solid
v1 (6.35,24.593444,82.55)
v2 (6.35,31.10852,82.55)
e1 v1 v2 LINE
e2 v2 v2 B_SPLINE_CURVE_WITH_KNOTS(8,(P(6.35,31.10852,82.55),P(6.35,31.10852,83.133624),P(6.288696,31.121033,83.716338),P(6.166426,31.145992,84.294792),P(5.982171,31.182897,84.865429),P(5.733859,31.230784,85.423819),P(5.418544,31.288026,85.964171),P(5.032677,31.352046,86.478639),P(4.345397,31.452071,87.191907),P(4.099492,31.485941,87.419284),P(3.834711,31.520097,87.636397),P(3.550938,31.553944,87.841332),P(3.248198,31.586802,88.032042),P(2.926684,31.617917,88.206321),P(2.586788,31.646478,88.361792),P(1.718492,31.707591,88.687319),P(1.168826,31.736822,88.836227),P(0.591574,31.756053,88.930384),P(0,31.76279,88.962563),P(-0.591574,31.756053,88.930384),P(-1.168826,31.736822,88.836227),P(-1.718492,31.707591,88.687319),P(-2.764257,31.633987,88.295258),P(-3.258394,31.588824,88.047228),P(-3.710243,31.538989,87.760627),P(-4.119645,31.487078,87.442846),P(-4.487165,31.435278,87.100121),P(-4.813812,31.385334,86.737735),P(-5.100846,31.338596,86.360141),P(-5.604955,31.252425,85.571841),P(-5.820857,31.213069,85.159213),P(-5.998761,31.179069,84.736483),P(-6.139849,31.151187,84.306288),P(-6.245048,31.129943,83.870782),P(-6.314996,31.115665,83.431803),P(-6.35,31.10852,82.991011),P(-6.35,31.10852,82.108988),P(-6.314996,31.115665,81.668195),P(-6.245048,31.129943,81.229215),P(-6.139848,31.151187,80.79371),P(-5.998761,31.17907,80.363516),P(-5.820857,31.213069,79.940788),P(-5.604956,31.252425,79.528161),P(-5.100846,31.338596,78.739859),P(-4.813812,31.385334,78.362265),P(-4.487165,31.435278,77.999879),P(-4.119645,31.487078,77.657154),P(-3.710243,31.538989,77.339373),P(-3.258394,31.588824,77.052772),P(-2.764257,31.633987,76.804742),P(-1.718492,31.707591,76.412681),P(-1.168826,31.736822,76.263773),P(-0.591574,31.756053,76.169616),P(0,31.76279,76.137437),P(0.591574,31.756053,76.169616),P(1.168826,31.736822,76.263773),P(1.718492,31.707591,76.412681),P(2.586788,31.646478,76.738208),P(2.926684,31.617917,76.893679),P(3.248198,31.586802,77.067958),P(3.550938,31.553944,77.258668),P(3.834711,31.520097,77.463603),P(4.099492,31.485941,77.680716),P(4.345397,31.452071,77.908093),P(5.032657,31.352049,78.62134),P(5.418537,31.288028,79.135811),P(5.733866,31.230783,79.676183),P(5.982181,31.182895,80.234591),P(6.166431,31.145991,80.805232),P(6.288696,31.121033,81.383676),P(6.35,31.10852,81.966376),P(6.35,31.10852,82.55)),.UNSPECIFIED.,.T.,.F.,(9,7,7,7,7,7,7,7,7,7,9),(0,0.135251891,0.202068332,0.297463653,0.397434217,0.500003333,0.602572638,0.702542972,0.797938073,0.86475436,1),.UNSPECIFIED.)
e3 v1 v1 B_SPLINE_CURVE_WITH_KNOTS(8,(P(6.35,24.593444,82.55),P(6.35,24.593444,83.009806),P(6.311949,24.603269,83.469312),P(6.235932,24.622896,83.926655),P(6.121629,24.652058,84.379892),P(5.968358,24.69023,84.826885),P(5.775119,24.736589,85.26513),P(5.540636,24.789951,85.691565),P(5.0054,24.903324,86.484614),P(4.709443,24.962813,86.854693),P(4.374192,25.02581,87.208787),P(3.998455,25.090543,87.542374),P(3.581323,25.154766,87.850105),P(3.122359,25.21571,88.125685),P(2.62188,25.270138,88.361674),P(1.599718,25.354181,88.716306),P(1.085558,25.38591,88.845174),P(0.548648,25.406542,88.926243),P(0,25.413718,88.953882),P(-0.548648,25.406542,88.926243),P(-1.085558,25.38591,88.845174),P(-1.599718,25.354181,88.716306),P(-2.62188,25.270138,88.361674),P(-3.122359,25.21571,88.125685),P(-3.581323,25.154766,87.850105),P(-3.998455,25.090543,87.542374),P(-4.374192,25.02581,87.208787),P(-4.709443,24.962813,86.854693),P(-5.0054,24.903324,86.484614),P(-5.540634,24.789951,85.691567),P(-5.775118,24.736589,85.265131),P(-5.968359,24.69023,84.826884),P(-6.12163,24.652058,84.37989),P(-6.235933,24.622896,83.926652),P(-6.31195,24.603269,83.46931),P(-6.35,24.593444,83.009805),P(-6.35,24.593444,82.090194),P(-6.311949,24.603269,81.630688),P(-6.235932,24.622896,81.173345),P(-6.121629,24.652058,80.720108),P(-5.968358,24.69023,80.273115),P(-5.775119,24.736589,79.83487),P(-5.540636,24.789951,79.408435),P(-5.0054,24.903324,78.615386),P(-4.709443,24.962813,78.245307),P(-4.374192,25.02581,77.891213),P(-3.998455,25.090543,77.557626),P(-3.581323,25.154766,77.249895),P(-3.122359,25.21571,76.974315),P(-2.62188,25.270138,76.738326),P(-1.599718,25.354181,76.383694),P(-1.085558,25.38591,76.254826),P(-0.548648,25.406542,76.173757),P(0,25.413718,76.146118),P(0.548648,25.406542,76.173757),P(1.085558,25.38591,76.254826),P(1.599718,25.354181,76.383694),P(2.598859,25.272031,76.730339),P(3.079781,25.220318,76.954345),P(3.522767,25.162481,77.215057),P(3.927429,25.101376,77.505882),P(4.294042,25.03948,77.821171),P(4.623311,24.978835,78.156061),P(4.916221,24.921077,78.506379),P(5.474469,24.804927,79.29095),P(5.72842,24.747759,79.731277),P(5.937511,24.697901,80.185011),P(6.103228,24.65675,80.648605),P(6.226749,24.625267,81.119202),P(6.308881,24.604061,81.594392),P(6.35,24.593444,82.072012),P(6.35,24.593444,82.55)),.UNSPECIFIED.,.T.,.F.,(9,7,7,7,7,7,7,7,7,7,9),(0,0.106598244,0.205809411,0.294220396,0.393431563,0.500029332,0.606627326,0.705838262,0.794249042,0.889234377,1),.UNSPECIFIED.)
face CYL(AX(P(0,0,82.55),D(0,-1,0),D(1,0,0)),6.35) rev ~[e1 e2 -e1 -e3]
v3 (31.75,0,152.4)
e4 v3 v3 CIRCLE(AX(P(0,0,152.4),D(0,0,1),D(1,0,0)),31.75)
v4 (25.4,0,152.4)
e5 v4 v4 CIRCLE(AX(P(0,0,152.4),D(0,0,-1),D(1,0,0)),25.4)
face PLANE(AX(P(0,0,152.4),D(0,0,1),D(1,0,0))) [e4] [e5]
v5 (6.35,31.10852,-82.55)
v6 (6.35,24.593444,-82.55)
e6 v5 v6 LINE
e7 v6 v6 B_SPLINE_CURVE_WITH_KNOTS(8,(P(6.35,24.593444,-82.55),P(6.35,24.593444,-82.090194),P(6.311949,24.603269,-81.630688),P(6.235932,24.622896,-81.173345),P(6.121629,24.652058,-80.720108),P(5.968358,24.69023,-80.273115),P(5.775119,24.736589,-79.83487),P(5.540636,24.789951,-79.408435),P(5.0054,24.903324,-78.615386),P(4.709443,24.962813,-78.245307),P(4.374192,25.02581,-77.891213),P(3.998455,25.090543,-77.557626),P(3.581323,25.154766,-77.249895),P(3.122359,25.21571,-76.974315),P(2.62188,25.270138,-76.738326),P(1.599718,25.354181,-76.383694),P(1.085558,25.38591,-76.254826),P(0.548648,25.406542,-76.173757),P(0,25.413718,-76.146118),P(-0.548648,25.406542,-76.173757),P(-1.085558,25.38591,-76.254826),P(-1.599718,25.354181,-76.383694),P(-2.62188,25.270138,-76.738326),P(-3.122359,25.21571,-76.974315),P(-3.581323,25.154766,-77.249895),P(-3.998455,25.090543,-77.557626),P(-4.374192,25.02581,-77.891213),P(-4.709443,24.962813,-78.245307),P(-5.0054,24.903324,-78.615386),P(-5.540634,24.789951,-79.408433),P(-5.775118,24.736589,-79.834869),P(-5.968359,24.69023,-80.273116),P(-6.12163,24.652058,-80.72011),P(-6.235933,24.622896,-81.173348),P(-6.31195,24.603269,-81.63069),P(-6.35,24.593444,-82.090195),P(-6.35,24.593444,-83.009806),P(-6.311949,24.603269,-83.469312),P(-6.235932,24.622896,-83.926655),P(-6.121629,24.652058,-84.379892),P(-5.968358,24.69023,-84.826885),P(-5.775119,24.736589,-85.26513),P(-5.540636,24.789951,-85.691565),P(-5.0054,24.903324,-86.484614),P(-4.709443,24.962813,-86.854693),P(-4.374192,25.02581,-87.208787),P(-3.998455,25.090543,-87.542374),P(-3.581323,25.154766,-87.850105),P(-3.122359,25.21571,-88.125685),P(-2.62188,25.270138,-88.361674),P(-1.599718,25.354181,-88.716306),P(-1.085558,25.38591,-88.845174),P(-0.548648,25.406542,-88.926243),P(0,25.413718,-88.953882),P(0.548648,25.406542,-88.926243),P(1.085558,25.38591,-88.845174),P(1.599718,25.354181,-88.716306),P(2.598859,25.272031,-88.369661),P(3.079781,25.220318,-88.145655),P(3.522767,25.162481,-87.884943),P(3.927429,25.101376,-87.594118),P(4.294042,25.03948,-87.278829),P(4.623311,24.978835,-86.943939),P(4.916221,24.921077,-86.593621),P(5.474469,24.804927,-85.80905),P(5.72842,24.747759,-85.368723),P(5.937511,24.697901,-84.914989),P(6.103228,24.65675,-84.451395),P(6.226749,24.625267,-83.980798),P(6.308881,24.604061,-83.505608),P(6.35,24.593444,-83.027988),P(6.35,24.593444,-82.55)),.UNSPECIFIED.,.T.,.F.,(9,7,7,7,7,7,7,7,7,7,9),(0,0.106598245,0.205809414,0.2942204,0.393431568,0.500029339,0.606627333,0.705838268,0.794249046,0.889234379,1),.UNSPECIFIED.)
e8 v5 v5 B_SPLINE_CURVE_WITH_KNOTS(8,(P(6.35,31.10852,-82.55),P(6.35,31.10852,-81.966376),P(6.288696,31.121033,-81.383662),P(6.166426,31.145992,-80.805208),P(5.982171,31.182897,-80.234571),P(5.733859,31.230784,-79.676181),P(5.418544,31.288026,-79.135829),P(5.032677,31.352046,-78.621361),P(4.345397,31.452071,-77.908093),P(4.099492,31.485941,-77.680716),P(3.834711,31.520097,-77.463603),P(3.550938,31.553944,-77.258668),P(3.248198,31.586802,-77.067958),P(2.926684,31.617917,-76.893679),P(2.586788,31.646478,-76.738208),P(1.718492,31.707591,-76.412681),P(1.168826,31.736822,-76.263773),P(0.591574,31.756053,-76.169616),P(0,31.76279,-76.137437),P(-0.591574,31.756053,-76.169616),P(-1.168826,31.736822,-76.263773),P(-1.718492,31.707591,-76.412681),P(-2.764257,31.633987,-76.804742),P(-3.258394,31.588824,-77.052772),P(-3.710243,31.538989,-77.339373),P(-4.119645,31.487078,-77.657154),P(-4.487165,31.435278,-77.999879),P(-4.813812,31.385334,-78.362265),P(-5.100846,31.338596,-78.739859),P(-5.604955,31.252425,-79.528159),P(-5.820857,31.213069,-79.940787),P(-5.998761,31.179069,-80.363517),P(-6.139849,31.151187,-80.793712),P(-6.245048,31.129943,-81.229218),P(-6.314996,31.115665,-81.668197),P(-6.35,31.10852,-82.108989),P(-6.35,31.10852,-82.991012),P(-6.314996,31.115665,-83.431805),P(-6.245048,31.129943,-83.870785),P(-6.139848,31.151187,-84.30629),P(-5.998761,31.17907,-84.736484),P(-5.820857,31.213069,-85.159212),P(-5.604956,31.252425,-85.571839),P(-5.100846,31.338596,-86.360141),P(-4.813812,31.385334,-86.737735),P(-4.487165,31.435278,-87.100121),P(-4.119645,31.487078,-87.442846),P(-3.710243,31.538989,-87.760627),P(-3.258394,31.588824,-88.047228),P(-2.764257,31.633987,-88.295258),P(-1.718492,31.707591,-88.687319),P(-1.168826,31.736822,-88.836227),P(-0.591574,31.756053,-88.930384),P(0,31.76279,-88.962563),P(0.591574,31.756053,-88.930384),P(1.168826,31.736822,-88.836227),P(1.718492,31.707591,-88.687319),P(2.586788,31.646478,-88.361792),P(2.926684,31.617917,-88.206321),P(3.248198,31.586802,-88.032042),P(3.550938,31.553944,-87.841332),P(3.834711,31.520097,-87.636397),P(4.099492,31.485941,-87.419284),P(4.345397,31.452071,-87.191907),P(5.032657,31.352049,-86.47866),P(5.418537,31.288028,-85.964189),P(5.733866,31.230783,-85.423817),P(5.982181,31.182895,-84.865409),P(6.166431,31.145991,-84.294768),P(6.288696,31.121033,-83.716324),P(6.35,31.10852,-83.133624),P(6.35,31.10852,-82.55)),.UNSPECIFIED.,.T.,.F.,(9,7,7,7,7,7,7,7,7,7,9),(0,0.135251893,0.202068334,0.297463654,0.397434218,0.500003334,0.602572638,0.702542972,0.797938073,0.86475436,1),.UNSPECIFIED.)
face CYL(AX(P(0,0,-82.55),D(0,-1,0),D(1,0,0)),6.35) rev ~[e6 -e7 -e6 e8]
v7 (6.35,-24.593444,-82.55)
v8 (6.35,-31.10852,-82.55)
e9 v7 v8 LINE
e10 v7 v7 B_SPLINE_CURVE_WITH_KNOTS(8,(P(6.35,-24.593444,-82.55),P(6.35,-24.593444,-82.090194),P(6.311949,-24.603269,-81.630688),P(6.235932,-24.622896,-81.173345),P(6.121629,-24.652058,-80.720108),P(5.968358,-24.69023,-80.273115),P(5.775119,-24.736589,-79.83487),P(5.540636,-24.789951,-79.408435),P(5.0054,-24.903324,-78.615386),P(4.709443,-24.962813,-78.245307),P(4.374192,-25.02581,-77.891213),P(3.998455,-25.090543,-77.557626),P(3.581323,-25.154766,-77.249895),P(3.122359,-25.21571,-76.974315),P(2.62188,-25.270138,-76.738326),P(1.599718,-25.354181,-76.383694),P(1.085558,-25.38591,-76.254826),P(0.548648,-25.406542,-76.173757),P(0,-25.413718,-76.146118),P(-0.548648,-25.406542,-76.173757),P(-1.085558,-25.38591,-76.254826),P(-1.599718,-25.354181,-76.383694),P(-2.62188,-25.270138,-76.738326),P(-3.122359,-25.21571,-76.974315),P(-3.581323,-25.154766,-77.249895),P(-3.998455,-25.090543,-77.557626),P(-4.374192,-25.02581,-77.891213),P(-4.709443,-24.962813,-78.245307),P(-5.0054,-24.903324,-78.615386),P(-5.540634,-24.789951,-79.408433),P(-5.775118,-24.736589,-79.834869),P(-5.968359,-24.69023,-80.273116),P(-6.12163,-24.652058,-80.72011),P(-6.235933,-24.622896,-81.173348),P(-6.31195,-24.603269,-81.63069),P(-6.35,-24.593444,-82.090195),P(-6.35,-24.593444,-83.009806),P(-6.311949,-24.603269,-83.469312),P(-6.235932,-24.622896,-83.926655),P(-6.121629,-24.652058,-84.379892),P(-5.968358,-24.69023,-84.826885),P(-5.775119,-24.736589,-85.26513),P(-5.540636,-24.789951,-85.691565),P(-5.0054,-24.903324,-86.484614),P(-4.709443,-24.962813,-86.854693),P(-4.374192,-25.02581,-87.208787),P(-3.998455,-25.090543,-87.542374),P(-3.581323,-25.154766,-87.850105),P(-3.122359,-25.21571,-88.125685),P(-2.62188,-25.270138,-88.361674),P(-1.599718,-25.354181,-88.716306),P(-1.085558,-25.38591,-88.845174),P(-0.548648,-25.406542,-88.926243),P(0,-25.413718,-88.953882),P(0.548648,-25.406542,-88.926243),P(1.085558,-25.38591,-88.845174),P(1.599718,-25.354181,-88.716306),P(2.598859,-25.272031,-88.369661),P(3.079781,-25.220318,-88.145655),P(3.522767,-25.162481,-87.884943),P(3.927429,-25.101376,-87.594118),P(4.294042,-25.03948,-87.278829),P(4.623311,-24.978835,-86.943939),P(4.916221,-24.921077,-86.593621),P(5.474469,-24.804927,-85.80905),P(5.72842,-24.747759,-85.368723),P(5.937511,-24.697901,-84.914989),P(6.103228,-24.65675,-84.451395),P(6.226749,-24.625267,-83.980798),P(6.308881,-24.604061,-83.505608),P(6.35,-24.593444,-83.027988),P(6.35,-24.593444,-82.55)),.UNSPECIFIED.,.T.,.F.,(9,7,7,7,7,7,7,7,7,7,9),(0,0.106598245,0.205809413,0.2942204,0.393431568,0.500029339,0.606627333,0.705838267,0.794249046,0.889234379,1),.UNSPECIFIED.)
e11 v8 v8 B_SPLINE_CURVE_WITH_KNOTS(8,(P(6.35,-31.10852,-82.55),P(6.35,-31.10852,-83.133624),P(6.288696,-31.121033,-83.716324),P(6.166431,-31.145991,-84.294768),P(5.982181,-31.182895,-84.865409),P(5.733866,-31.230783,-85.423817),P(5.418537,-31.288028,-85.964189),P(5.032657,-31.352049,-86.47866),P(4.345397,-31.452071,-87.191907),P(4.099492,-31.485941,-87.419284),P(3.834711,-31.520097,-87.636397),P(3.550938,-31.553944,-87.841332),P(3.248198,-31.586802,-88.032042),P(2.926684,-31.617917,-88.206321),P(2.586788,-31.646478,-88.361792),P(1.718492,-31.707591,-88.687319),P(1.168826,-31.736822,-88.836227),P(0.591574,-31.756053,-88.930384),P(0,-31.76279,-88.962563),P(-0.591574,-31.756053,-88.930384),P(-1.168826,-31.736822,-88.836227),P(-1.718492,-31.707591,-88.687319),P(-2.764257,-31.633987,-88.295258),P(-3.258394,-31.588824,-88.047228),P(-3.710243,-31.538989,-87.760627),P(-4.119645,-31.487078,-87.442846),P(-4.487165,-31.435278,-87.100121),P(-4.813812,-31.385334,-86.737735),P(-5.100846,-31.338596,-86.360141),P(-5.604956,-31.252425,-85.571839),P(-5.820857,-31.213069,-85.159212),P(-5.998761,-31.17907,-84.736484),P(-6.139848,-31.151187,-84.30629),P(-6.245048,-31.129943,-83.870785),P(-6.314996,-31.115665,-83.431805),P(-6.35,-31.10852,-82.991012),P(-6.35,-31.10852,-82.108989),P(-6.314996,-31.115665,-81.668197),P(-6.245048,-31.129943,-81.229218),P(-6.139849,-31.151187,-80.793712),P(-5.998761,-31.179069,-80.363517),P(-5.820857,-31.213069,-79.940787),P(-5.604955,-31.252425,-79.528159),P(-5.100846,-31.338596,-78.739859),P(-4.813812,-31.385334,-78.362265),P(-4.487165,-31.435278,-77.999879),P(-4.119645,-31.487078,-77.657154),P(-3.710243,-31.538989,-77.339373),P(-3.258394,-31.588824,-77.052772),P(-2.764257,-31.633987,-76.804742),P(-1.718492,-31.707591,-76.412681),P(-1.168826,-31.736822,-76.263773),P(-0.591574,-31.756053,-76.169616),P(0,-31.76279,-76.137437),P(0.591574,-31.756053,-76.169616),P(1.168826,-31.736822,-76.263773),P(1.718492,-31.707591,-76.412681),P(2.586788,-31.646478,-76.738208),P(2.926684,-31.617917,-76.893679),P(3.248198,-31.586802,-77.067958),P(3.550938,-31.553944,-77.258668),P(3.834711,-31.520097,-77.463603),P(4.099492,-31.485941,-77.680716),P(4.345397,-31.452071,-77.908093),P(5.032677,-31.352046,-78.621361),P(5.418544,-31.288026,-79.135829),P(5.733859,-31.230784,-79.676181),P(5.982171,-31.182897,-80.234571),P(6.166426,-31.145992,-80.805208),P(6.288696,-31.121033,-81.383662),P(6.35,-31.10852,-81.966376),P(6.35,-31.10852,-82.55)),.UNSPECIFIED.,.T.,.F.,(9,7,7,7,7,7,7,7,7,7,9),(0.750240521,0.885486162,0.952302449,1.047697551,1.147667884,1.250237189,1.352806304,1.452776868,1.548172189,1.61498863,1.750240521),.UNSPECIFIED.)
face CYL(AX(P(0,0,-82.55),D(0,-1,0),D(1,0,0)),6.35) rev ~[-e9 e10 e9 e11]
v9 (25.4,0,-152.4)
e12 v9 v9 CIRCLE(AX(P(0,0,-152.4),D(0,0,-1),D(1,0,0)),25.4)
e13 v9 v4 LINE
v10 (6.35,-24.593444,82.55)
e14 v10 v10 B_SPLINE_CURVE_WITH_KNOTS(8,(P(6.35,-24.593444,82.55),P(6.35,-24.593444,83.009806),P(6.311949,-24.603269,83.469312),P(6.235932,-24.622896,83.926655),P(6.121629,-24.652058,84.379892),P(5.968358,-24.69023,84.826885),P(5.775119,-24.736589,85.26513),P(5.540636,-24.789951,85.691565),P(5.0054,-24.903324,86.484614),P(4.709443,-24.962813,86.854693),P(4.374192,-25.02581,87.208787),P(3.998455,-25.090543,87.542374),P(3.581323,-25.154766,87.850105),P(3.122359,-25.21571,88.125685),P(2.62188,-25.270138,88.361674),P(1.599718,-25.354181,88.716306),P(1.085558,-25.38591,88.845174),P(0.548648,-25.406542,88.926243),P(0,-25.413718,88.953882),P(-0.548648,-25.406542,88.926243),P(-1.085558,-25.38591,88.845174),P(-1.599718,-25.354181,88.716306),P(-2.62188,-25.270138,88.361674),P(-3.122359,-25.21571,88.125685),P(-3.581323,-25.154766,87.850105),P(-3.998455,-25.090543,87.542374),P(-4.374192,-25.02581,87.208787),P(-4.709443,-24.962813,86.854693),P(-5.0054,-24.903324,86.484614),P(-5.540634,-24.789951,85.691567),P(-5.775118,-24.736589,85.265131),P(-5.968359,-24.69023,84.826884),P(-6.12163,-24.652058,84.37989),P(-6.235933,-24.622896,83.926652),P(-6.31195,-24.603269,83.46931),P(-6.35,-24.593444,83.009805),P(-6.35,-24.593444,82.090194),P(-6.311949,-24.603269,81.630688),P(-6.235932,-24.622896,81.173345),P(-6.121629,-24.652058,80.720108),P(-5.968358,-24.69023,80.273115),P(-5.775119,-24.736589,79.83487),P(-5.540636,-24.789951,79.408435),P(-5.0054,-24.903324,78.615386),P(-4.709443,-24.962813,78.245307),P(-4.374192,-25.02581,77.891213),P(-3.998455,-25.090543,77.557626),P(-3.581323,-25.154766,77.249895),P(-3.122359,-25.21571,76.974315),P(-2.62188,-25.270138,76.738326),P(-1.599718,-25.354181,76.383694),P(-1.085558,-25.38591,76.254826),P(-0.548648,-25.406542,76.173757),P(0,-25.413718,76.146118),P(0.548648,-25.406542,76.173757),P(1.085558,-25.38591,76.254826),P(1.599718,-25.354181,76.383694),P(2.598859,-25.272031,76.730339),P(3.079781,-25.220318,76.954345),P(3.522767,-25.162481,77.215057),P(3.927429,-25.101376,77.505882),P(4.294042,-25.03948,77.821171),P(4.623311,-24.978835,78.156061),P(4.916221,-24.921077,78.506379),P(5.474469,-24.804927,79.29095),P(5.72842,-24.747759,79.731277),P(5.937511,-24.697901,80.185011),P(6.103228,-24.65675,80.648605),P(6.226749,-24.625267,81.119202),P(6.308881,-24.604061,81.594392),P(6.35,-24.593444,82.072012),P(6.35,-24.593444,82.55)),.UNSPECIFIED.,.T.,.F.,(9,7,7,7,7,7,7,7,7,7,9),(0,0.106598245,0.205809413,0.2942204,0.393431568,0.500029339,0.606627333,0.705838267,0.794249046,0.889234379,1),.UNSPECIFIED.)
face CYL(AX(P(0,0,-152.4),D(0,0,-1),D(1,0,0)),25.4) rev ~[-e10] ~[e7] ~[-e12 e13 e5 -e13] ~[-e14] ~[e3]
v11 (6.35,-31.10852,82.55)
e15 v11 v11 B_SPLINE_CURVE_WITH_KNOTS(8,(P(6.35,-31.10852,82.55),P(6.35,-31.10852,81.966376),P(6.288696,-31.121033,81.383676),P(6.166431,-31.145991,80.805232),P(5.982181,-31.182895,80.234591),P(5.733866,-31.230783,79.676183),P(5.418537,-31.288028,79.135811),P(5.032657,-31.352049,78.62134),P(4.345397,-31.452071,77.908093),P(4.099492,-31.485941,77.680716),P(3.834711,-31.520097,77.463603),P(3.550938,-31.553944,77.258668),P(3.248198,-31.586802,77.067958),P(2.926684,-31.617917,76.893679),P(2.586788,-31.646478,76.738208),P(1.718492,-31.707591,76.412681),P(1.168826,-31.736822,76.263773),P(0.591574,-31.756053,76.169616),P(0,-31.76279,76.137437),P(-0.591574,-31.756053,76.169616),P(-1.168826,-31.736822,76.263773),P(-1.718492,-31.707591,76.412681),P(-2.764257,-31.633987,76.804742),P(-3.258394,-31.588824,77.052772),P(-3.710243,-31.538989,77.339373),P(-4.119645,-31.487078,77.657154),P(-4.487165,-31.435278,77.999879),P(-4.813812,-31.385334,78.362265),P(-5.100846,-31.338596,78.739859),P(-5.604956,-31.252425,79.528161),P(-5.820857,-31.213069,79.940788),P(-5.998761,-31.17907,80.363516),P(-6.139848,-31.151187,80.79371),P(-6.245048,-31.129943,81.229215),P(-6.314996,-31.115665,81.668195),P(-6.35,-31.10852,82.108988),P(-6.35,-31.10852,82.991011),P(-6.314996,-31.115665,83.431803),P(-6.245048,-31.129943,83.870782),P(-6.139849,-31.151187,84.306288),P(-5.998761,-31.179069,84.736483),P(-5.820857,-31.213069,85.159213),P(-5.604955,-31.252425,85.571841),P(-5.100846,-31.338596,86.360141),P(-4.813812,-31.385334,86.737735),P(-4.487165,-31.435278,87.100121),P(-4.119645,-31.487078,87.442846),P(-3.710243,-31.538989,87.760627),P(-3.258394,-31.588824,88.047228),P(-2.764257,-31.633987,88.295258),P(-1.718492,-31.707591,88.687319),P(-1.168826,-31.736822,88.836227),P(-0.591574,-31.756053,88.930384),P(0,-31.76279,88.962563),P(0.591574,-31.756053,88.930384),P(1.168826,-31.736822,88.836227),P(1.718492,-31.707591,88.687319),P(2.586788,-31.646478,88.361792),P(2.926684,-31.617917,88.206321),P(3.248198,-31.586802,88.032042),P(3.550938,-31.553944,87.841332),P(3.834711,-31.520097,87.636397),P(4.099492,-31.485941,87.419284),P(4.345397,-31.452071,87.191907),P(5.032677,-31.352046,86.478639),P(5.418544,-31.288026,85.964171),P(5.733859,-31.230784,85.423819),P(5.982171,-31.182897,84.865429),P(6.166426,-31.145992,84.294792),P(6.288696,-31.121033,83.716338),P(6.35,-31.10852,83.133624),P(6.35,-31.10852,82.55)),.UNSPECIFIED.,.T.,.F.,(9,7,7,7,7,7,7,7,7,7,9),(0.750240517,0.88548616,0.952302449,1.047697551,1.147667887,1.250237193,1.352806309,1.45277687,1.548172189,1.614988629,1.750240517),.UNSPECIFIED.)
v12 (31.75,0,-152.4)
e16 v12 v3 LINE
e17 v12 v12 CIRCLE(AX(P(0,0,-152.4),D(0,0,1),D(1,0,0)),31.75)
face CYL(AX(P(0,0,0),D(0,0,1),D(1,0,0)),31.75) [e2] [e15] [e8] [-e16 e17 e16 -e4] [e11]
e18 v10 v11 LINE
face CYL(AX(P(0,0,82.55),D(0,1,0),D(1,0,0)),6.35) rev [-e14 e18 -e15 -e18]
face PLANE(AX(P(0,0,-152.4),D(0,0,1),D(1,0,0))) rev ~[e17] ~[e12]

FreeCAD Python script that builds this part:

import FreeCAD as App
import Part
import Sketcher
Q = App.Units.Quantity

doc = App.newDocument("Part")
params = doc.addObject("Spreadsheet::Sheet", "Params")
for row, (alias, value) in enumerate([
    ("sketch1_diameter", "2.5 in"),
    ("pad1_length", "12 in"),
    ("sketch2_diameter", "2 in"),
    ("pocket1_length", "12 in"),
    ("sketch3_diameter", "0.5 in"),
    ("pocket2_length", "2.5 in"),
], start=1):
    params.set(f"A{row}", alias)
    params.set(f"B{row}", "=" + value)
    params.setAlias(f"B{row}", alias)

body = doc.addObject("PartDesign::Body", "Body")

# Sketch on XY plane
sketch1 = body.newObject("Sketcher::SketchObject", "Sketch")
sketch1.AttachmentSupport = (doc.getObject("XY_Plane"), [""])
sketch1.MapMode = "FlatFace"
sketch1.addGeometry(Part.Circle(App.Vector(0, 0, 0), App.Vector(0, 0, 1), 31.75), False)
sketch1.addConstraint(Sketcher.Constraint("Coincident", 0, 3, -1, 1))
sketch1.addConstraint(Sketcher.Constraint("Diameter", 0, Q("2.5 in")))
sketch1.setExpression("Constraints[1]", "Params.sketch1_diameter")
pad1 = body.newObject("PartDesign::Pad", "Pad")
pad1.Profile = sketch1
pad1.setExpression("Length", "Params.pad1_length")
pad1.Midplane = True

# Sketch on XY plane
sketch2 = body.newObject("Sketcher::SketchObject", "Sketch001")
sketch2.AttachmentSupport = (doc.getObject("XY_Plane"), [""])
sketch2.MapMode = "FlatFace"
sketch2.AttachmentOffset = App.Placement(App.Vector(0, 0, -6 * 25.4), App.Rotation())
sketch2.addGeometry(Part.Circle(App.Vector(0, 0, 0), App.Vector(0, 0, 1), 25.4), False)
sketch2.addConstraint(Sketcher.Constraint("Coincident", 0, 3, -1, 1))
sketch2.addConstraint(Sketcher.Constraint("Diameter", 0, Q("2 in")))
sketch2.setExpression("Constraints[1]", "Params.sketch2_diameter")
pocket1 = body.newObject("PartDesign::Pocket", "Pocket")
pocket1.Profile = sketch2
pocket1.setExpression("Length", "Params.pocket1_length")
pocket1.Reversed = True

# Sketch on XZ plane
sketch3 = body.newObject("Sketcher::SketchObject", "Sketch002")
sketch3.AttachmentSupport = (doc.getObject("XZ_Plane"), [""])
sketch3.MapMode = "FlatFace"
sketch3.addGeometry(Part.Circle(App.Vector(0, 82.55, 0), App.Vector(0, 0, 1), 6.35), False)
sketch3.addGeometry(Part.Circle(App.Vector(0, -82.55, 0), App.Vector(0, 0, 1), 6.35), False)
sketch3.addConstraint(Sketcher.Constraint("Equal", 0, 1))
sketch3.addConstraint(Sketcher.Constraint("Symmetric", 0, 3, 1, 3, -1, 1))
sketch3.addConstraint(Sketcher.Constraint("PointOnObject", 0, 3, -2))
sketch3.addConstraint(Sketcher.Constraint("Diameter", 0, Q("0.5 in")))
sketch3.addConstraint(Sketcher.Constraint("DistanceY", 1, 3, 0, 3, Q("6.5 in")))
sketch3.setExpression("Constraints[3]", "Params.sketch3_diameter")
pocket2 = body.newObject("PartDesign::Pocket", "Pocket001")
pocket2.Profile = sketch3
pocket2.setExpression("Length", "Params.pocket2_length")
pocket2.Midplane = True

doc.recompute()
